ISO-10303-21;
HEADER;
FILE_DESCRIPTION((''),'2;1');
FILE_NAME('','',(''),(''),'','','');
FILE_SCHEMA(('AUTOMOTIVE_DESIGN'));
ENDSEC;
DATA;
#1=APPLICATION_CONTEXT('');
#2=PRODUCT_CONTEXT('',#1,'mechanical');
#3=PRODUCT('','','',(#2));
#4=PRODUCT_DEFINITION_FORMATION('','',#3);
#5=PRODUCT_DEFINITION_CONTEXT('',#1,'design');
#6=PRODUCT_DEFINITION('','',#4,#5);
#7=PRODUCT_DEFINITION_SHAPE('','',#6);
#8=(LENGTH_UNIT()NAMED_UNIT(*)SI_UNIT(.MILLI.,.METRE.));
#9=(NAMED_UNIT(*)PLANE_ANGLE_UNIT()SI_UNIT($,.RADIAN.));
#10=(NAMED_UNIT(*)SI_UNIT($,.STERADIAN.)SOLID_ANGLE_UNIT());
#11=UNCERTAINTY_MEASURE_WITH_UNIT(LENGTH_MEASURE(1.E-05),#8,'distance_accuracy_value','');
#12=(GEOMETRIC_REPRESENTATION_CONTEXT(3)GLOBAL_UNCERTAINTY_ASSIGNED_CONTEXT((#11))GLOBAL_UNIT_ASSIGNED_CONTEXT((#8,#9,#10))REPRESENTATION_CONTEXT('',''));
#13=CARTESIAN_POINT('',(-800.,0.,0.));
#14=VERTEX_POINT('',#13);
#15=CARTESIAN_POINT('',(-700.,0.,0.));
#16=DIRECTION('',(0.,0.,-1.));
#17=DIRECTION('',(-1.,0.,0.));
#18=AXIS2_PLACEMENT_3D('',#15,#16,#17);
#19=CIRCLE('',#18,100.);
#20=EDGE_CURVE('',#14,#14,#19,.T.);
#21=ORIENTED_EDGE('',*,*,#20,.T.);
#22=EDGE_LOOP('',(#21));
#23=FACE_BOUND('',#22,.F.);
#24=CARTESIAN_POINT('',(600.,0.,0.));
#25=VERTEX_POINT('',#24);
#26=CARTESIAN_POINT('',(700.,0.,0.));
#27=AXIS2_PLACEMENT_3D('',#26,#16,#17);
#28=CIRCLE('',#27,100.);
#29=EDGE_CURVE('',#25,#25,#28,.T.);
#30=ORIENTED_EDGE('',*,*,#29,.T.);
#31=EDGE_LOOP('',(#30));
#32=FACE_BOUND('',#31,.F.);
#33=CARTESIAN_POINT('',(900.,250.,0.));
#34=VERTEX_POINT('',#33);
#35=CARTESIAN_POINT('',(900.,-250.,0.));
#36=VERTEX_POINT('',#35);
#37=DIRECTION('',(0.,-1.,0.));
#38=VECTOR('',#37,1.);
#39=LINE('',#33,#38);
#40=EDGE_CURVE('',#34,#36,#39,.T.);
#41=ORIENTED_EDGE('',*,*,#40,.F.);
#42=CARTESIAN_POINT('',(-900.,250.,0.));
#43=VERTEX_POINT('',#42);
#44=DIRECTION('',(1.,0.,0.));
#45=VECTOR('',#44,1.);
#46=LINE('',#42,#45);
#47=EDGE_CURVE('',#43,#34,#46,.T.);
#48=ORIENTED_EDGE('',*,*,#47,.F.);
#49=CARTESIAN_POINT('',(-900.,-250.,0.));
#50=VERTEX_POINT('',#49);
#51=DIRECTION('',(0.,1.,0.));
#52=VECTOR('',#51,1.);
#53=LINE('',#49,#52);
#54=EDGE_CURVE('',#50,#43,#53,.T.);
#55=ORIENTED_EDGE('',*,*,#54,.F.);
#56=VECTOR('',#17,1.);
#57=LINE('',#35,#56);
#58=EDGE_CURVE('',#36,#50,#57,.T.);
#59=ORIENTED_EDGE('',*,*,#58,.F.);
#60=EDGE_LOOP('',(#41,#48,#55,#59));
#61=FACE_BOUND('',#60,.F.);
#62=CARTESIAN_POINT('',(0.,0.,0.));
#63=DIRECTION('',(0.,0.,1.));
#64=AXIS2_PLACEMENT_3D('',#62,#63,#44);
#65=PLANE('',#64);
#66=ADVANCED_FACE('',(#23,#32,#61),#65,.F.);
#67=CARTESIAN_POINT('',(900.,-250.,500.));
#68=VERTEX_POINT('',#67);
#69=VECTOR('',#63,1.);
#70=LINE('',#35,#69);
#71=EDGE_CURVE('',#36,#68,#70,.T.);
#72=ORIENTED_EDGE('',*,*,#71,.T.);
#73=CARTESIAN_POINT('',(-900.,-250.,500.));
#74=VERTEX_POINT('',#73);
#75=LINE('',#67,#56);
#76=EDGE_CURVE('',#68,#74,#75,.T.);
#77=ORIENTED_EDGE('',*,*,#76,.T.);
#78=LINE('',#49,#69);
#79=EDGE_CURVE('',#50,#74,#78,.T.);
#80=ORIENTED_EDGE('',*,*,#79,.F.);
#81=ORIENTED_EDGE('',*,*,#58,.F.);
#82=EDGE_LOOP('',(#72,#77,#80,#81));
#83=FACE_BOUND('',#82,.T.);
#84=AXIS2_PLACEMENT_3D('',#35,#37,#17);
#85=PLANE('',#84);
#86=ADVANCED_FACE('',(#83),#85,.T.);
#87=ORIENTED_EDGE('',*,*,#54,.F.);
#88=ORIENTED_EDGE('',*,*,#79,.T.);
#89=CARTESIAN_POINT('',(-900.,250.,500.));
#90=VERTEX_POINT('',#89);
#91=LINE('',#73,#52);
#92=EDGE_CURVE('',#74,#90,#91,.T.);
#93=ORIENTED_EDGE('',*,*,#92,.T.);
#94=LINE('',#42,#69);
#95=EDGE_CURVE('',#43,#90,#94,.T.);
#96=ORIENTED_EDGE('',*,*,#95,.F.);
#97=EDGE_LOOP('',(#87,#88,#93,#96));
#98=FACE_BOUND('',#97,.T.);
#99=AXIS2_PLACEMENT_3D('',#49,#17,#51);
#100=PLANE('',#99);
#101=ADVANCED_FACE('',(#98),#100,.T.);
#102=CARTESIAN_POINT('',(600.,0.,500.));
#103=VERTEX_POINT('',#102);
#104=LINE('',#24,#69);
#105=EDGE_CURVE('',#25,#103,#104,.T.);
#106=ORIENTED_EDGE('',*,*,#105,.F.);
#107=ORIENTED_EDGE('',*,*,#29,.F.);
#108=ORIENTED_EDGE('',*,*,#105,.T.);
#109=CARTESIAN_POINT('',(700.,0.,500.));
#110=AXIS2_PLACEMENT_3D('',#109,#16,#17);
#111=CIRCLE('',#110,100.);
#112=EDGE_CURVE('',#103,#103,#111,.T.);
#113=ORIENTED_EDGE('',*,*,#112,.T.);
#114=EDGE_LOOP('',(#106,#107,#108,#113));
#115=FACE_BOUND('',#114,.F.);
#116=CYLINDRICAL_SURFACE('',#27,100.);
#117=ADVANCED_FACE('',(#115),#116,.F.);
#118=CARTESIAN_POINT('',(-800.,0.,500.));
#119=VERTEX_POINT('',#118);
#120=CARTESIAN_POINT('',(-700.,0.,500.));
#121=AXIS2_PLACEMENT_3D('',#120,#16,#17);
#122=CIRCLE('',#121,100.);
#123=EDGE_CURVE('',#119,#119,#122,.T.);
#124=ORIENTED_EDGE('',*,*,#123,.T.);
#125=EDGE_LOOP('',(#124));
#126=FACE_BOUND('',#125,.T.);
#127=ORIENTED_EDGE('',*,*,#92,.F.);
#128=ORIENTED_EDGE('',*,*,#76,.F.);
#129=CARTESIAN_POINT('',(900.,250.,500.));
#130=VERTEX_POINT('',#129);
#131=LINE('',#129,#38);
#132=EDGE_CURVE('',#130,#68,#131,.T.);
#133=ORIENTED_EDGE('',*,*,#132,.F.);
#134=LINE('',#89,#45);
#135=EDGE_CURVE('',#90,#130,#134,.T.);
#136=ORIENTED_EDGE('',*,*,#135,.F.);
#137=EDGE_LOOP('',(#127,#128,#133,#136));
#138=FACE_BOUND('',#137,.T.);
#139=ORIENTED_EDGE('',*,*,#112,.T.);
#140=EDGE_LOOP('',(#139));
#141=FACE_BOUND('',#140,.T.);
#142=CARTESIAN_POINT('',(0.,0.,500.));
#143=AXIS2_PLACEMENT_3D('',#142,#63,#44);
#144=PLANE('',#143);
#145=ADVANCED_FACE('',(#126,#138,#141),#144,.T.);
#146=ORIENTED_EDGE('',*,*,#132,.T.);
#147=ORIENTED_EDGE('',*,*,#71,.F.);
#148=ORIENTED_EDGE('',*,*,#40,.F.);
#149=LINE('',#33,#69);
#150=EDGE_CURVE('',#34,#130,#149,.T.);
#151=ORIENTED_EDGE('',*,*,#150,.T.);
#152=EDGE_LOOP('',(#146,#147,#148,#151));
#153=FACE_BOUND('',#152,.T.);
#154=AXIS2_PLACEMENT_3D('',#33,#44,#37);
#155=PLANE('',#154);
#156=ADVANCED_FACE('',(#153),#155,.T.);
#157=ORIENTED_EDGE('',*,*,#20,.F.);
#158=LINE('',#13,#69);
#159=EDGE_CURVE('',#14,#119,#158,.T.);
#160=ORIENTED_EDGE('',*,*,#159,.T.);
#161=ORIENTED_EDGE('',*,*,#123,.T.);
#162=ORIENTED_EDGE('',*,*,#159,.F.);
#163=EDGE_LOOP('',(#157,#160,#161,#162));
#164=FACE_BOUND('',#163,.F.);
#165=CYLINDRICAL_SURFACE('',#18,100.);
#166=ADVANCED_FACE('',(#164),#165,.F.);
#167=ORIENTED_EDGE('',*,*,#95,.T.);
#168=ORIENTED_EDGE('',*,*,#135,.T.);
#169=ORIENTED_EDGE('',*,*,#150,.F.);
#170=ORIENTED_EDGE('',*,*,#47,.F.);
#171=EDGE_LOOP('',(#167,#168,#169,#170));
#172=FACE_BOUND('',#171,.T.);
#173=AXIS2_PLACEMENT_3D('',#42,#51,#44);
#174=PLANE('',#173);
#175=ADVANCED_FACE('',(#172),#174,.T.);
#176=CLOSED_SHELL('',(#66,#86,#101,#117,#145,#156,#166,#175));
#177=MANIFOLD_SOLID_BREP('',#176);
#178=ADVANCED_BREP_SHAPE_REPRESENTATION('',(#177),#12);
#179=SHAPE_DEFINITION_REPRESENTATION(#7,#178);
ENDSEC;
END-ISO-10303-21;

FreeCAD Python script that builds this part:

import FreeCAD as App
import Part
import Sketcher
from FreeCAD import Vector


def add_polygon(sketch, points):
    """Adds a closed chain of lines whose ends are joined by coincident constraints."""
    first, n = sketch.GeometryCount, len(points)
    for a, b in zip(points, points[1:] + points[:1]):
        sketch.addGeometry(Part.LineSegment(App.Vector(*a, 0), App.Vector(*b, 0)), False)
    for i in range(n):
        sketch.addConstraint(Sketcher.Constraint("Coincident", first + i, 2, first + (i + 1) % n, 1))

doc = App.newDocument("Part")
params = doc.addObject("Spreadsheet::Sheet", "Params")
for row, (alias, value) in enumerate([
    ("sketch1_width", "1800 mm"),
    ("sketch1_height", "500 mm"),
    ("pad1_length", "500 mm"),
    ("sketch2_diameter", "200 mm"),
], start=1):
    params.set(f"A{row}", alias)
    params.set(f"B{row}", "=" + value)
    params.setAlias(f"B{row}", alias)

body = doc.addObject("PartDesign::Body", "Body")

sketch1 = body.newObject("Sketcher::SketchObject", "Sketch")
sketch1.AttachmentSupport = (doc.getObject("XY_Plane"), [""])
sketch1.MapMode = "FlatFace"
add_polygon(sketch1, [(900, 250), (-900, 250), (-900, -250), (900, -250)])
sketch1.addConstraint([
    Sketcher.Constraint("Horizontal", 0),
    Sketcher.Constraint("Vertical", 1),
    Sketcher.Constraint("Horizontal", 2),
    Sketcher.Constraint("Vertical", 3),
    Sketcher.Constraint("Symmetric", 0, 2, 2, 2, -1, 1),
    Sketcher.Constraint("DistanceX", 0, 2, 0, 1, 1800.0),
    Sketcher.Constraint("DistanceY", 1, 2, 1, 1, 500.0),
])
sketch1.setExpression("Constraints[9]", "Params.sketch1_width")
sketch1.setExpression("Constraints[10]", "Params.sketch1_height")
pad1 = body.newObject("PartDesign::Pad", "Pad")
pad1.Profile = sketch1
pad1.setExpression("Length", "Params.pad1_length")

sketch2 = body.newObject("Sketcher::SketchObject", "Sketch001")
sketch2.AttachmentSupport = (doc.getObject("XY_Plane"), [""])
sketch2.MapMode = "FlatFace"
sketch2.addGeometry([
    Part.Circle(Vector(700, 0, 0), Vector(0, 0, 1), 100),
    Part.Circle(Vector(-700, 0, 0), Vector(0, 0, 1), 100),
], False)
sketch2.addConstraint([
    Sketcher.Constraint("Equal", 0, 1),
    Sketcher.Constraint("Symmetric", 0, 3, 1, 3, -1, 1),
    Sketcher.Constraint("PointOnObject", 0, 3, -1),
    Sketcher.Constraint("Diameter", 0, 200.0),
    Sketcher.Constraint("DistanceX", -1, 1, 0, 3, 700.0),
])
sketch2.setExpression("Constraints[3]", "Params.sketch2_diameter")
pocket1 = body.newObject("PartDesign::Pocket", "Pocket")
pocket1.Profile = sketch2
pocket1.Type = "ThroughAll"
pocket1.Reversed = True

doc.recompute()
